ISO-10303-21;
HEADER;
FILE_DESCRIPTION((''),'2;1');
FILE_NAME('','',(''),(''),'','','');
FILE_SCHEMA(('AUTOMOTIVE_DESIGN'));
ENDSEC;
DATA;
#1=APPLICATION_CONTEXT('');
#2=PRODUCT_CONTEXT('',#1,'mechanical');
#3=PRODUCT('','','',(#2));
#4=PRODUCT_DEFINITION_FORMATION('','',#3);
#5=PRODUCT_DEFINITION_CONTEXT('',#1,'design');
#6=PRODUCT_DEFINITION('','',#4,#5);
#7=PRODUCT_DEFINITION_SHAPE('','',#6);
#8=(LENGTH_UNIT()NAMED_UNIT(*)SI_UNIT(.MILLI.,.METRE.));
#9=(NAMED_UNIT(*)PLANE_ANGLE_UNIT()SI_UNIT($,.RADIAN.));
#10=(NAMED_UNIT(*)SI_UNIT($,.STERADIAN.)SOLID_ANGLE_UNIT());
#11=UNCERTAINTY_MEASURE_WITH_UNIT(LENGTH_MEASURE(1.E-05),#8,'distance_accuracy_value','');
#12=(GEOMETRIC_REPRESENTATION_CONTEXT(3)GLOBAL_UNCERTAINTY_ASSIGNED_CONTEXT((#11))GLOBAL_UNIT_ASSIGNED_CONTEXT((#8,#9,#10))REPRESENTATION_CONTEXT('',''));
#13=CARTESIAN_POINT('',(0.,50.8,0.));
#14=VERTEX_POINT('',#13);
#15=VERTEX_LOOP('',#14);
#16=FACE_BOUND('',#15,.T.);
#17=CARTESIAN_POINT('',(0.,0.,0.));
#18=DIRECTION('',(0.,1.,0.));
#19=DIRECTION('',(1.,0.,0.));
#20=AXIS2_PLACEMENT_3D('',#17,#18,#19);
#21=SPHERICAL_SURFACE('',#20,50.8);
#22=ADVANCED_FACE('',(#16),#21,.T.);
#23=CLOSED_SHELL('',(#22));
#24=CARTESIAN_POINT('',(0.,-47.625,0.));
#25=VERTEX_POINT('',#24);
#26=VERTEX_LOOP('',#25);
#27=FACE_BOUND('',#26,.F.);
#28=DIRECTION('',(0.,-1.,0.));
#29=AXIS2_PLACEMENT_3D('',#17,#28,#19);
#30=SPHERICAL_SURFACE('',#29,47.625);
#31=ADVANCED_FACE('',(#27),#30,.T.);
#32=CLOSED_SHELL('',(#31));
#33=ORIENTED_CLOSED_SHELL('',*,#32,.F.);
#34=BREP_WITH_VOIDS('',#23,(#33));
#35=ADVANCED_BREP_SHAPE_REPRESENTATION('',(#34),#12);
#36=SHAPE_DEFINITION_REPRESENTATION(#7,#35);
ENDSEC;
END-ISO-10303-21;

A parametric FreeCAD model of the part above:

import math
import FreeCAD as App
import Part
import Sketcher

V = App.Vector
Q = App.Units.Quantity

doc = App.newDocument("Part")
params = doc.addObject("Spreadsheet::Sheet", "Params")
for row, (alias, value) in enumerate([
    ("sketch1_radius", "2 in"),
    ("sketch1_radius2", "1.875 in"),
    ("revolution_angle", "360 deg"),
], start=1):
    params.set(f"A{row}", alias)
    params.set(f"B{row}", "=" + value)
    params.setAlias(f"B{row}", alias)

body = doc.addObject("PartDesign::Body", "Body")

sketch1 = body.newObject("Sketcher::SketchObject", "Sketch")
sketch1.AttachmentSupport = (doc.getObject("XY_Plane"), [""])
sketch1.MapMode = "FlatFace"
sketch1.addGeometry(Part.ArcOfCircle(Part.Circle(V(0, 0, 0), V(0, 0, 1), 47.6), math.radians(-90), math.radians(90)), False)
sketch1.addGeometry(Part.LineSegment(V(0, -47.6, 0), V(0, -50.8, 0)), False)
sketch1.addGeometry(Part.ArcOfCircle(Part.Circle(V(0, 0, 0), V(0, 0, 1), 50.8), math.radians(-90), math.radians(90)), False)
sketch1.addGeometry(Part.LineSegment(V(0, 50.8, 0), V(0, 47.6, 0)), False)
sketch1.addConstraint(Sketcher.Constraint("Coincident", 0, 1, 1, 1))
sketch1.addConstraint(Sketcher.Constraint("Coincident", 1, 2, 2, 1))
sketch1.addConstraint(Sketcher.Constraint("Coincident", 2, 2, 3, 1))
sketch1.addConstraint(Sketcher.Constraint("Coincident", 3, 2, 0, 2))
sketch1.addConstraint(Sketcher.Constraint("Vertical", 1))
sketch1.addConstraint(Sketcher.Constraint("Vertical", 3))
sketch1.addConstraint(Sketcher.Constraint("Coincident", 0, 3, -1, 1))
sketch1.addConstraint(Sketcher.Constraint("Coincident", 2, 3, -1, 1))
sketch1.addConstraint(Sketcher.Constraint("PointOnObject", 0, 1, -2))
sketch1.addConstraint(Sketcher.Constraint("PointOnObject", 2, 2, -2))
sketch1.addConstraint(Sketcher.Constraint("Radius", 2, Q("2 in")))
sketch1.addConstraint(Sketcher.Constraint("Radius", 0, Q("1.875 in")))
sketch1.setExpression("Constraints[10]", "Params.sketch1_radius")
sketch1.setExpression("Constraints[11]", "Params.sketch1_radius2")
revolution = body.newObject("PartDesign::Revolution", "Revolution")
revolution.Profile = sketch1
revolution.ReferenceAxis = (sketch1, ["V_Axis"])
revolution.setExpression("Angle", "Params.revolution_angle")

doc.recompute()
